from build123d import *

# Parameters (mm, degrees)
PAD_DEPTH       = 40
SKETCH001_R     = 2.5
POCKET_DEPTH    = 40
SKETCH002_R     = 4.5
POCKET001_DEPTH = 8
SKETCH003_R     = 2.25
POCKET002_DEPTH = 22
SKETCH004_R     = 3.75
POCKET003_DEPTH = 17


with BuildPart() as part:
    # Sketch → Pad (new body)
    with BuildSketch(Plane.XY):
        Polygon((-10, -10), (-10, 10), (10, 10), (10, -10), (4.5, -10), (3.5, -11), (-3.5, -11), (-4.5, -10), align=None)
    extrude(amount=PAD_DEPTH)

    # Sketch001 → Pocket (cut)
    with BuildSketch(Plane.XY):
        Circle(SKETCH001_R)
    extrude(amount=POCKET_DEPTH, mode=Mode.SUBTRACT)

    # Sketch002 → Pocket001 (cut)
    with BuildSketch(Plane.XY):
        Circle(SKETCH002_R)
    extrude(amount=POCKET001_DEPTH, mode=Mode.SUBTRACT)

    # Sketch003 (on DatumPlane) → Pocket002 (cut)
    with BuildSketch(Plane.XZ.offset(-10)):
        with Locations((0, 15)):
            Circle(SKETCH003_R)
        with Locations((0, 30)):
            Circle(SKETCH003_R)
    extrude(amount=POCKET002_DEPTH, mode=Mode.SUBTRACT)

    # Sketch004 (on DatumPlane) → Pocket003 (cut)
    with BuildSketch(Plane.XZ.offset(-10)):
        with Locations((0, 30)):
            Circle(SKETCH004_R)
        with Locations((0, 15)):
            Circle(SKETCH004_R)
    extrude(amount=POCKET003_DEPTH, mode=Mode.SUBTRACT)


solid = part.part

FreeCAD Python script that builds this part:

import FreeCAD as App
import Part
import Sketcher
Q = App.Units.Quantity

doc = App.newDocument("Part")
body = doc.addObject("PartDesign::Body", "Body")

sketch1 = body.newObject("Sketcher::SketchObject", "Sketch")
sketch1.AttachmentSupport = (doc.getObject("XY_Plane"), [""])
sketch1.MapMode = "FlatFace"
sketch1.addGeometry([
    Part.LineSegment(App.Vector(-10, 10, 0), App.Vector(-10, -10, 0)),
    Part.LineSegment(App.Vector(-10, -10, 0), App.Vector(-4.5, -10, 0)),
    Part.LineSegment(App.Vector(-4.5, -10, 0), App.Vector(-3.5, -11, 0)),
    Part.LineSegment(App.Vector(-3.5, -11, 0), App.Vector(3.5, -11, 0)),
    Part.LineSegment(App.Vector(3.5, -11, 0), App.Vector(4.5, -10, 0)),
    Part.LineSegment(App.Vector(4.5, -10, 0), App.Vector(10, -10, 0)),
    Part.LineSegment(App.Vector(10, -10, 0), App.Vector(10, 10, 0)),
    Part.LineSegment(App.Vector(10, 10, 0), App.Vector(-10, 10, 0)),
], False)
sketch1.addConstraint([
    Sketcher.Constraint("Coincident", 0, 2, 1, 1),
    Sketcher.Constraint("Coincident", 1, 2, 2, 1),
    Sketcher.Constraint("Coincident", 2, 2, 3, 1),
    Sketcher.Constraint("Coincident", 3, 2, 4, 1),
    Sketcher.Constraint("Coincident", 4, 2, 5, 1),
    Sketcher.Constraint("Coincident", 5, 2, 6, 1),
    Sketcher.Constraint("Coincident", 6, 2, 7, 1),
    Sketcher.Constraint("Coincident", 7, 2, 0, 1),
    Sketcher.Constraint("Vertical", 0),
    Sketcher.Constraint("Horizontal", 1),
    Sketcher.Constraint("Horizontal", 3),
    Sketcher.Constraint("Horizontal", 5),
    Sketcher.Constraint("Vertical", 6),
    Sketcher.Constraint("Horizontal", 7),
    Sketcher.Constraint("Symmetric", 0, 2, 6, 2, -1, 1),
    Sketcher.Constraint("Symmetric", 1, 2, 4, 2, -2),
    Sketcher.Constraint("Perpendicular", 2, 4),
    Sketcher.Constraint("Equal", 7, 0),
    Sketcher.Constraint("Equal", 2, 4),
    Sketcher.Constraint("DistanceX", 3, 1, 3, 2, Q("7 mm")),
    Sketcher.Constraint("DistanceX", 7, 2, 7, 1, Q("20 mm")),
    Sketcher.Constraint("DistanceX", 1, 1, 1, 2, Q("5.5 mm")),
])
pad1 = body.newObject("PartDesign::Pad", "Pad")
pad1.Profile = sketch1
pad1.Length = 40

sketch2 = body.newObject("Sketcher::SketchObject", "Sketch001")
sketch2.AttachmentSupport = (doc.getObject("XY_Plane"), [""])
sketch2.MapMode = "FlatFace"
sketch2.addGeometry(Part.Circle(App.Vector(0, 0, 0), App.Vector(0, 0, 1), 2.5), False)
sketch2.addConstraint([
    Sketcher.Constraint("Coincident", 0, 3, -1, 1),
    Sketcher.Constraint("Diameter", 0, Q("5 mm")),
])
pocket1 = body.newObject("PartDesign::Pocket", "Pocket")
pocket1.Profile = sketch2
pocket1.Length = 40
pocket1.Reversed = True

sketch3 = body.newObject("Sketcher::SketchObject", "Sketch002")
sketch3.AttachmentSupport = (doc.getObject("XY_Plane"), [""])
sketch3.MapMode = "FlatFace"
sketch3.addGeometry(Part.Circle(App.Vector(0, 0, 0), App.Vector(0, 0, 1), 4.5), False)
sketch3.addConstraint([
    Sketcher.Constraint("Coincident", 0, 3, -1, 1),
    Sketcher.Constraint("Diameter", 0, Q("9 mm")),
])
pocket2 = body.newObject("PartDesign::Pocket", "Pocket001")
pocket2.Profile = sketch3
pocket2.Length = 8
pocket2.Reversed = True

sketch4 = body.newObject("Sketcher::SketchObject", "Sketch003")
sketch4.AttachmentSupport = (doc.getObject("XZ_Plane"), [""])
sketch4.MapMode = "FlatFace"
sketch4.AttachmentOffset = App.Placement(App.Vector(0, 0, -10), App.Rotation())
sketch4.addGeometry([
    Part.Circle(App.Vector(0, 15, 0), App.Vector(0, 0, 1), 2.2),
    Part.Circle(App.Vector(0, 30, 0), App.Vector(0, 0, 1), 2.2),
], False)
sketch4.addConstraint([
    Sketcher.Constraint("Equal", 0, 1),
    Sketcher.Constraint("PointOnObject", 0, 3, -2),
    Sketcher.Constraint("PointOnObject", 1, 3, -2),
    Sketcher.Constraint("Diameter", 0, Q("4.5 mm")),
    Sketcher.Constraint("DistanceY", -1, 1, 0, 3, Q("15 mm")),
    Sketcher.Constraint("DistanceY", -1, 1, 1, 3, Q("30 mm")),
])
pocket3 = body.newObject("PartDesign::Pocket", "Pocket002")
pocket3.Profile = sketch4
pocket3.Length = 22
pocket3.Reversed = True

sketch5 = body.newObject("Sketcher::SketchObject", "Sketch004")
sketch5.AttachmentSupport = (doc.getObject("XZ_Plane"), [""])
sketch5.MapMode = "FlatFace"
sketch5.AttachmentOffset = App.Placement(App.Vector(0, 0, -10), App.Rotation())
sketch5.addGeometry([
    Part.Circle(App.Vector(0, 30, 0), App.Vector(0, 0, 1), 3.8),
    Part.Circle(App.Vector(0, 15, 0), App.Vector(0, 0, 1), 3.8),
], False)
sketch5.addConstraint([
    Sketcher.Constraint("Equal", 0, 1),
    Sketcher.Constraint("PointOnObject", 0, 3, -2),
    Sketcher.Constraint("PointOnObject", 1, 3, -2),
    Sketcher.Constraint("Diameter", 0, Q("7.5 mm")),
    Sketcher.Constraint("DistanceY", -1, 1, 0, 3, Q("30 mm")),
    Sketcher.Constraint("DistanceY", -1, 1, 1, 3, Q("15 mm")),
])
pocket4 = body.newObject("PartDesign::Pocket", "Pocket003")
pocket4.Profile = sketch5
pocket4.Length = 17
pocket4.Reversed = True

doc.recompute()
